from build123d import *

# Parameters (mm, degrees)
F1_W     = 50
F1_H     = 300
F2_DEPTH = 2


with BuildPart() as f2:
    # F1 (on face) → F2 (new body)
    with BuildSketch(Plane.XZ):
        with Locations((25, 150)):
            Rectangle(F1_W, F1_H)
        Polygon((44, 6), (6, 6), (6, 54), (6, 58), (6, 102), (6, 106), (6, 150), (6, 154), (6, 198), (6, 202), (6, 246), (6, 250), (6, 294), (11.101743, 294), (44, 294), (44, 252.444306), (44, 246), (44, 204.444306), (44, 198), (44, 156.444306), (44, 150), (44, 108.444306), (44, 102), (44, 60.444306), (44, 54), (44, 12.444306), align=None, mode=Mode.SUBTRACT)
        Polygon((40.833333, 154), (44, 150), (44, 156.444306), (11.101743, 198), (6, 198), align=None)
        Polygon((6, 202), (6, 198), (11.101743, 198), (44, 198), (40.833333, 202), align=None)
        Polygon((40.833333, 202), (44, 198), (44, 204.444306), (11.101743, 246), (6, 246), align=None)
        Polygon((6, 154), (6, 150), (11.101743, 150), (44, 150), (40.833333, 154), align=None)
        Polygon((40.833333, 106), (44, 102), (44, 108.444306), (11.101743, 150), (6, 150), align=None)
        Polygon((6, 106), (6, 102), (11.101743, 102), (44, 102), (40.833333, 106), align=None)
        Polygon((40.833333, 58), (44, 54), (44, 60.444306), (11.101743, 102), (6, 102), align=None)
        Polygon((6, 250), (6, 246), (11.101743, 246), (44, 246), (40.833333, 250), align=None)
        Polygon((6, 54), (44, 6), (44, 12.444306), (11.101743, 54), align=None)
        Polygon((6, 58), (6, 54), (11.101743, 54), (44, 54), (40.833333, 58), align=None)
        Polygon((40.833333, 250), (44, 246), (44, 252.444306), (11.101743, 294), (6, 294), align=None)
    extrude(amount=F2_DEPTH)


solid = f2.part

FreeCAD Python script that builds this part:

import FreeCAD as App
import Part
import Sketcher

doc = App.newDocument("Part")
body = doc.addObject("PartDesign::Body", "Body")

sketch1 = doc.addObject("Sketcher::SketchObject", "Sketch")
body.addObject(sketch1)
sketch1.AttachmentSupport = (doc.XZ_Plane, [""])
sketch1.MapMode = "FlatFace"
sketch1.addGeometry([
    Part.LineSegment(App.Vector(0, 300, 0), App.Vector(0, 0, 0)),
    Part.LineSegment(App.Vector(0, 0, 0), App.Vector(50, 0, 0)),
    Part.LineSegment(App.Vector(50, 0, 0), App.Vector(50, 300, 0)),
    Part.LineSegment(App.Vector(50, 300, 0), App.Vector(0, 300, 0)),
    Part.LineSegment(App.Vector(6, 102, 0), App.Vector(41, 58, 0)),
    Part.LineSegment(App.Vector(41, 58, 0), App.Vector(6, 58, 0)),
    Part.LineSegment(App.Vector(6, 58, 0), App.Vector(6, 102, 0)),
    Part.LineSegment(App.Vector(6, 106, 0), App.Vector(6, 150, 0)),
    Part.LineSegment(App.Vector(6, 150, 0), App.Vector(41, 106, 0)),
    Part.LineSegment(App.Vector(41, 106, 0), App.Vector(6, 106, 0)),
    Part.LineSegment(App.Vector(6, 6, 0), App.Vector(6, 54, 0)),
    Part.LineSegment(App.Vector(6, 54, 0), App.Vector(44, 6, 0)),
    Part.LineSegment(App.Vector(44, 6, 0), App.Vector(6, 6, 0)),
    Part.LineSegment(App.Vector(44, 12, 0), App.Vector(11, 54, 0)),
    Part.LineSegment(App.Vector(11, 54, 0), App.Vector(44, 54, 0)),
    Part.LineSegment(App.Vector(44, 54, 0), App.Vector(44, 12, 0)),
    Part.LineSegment(App.Vector(11, 102, 0), App.Vector(44, 102, 0)),
    Part.LineSegment(App.Vector(44, 102, 0), App.Vector(44, 60, 0)),
    Part.LineSegment(App.Vector(44, 60, 0), App.Vector(11, 102, 0)),
    Part.LineSegment(App.Vector(11, 150, 0), App.Vector(44, 150, 0)),
    Part.LineSegment(App.Vector(44, 150, 0), App.Vector(44, 108, 0)),
    Part.LineSegment(App.Vector(44, 108, 0), App.Vector(11, 150, 0)),
    Part.LineSegment(App.Vector(6, 154, 0), App.Vector(6, 198, 0)),
    Part.LineSegment(App.Vector(6, 198, 0), App.Vector(41, 154, 0)),
    Part.LineSegment(App.Vector(41, 154, 0), App.Vector(6, 154, 0)),
    Part.LineSegment(App.Vector(6, 202, 0), App.Vector(6, 246, 0)),
    Part.LineSegment(App.Vector(6, 246, 0), App.Vector(41, 202, 0)),
    Part.LineSegment(App.Vector(41, 202, 0), App.Vector(6, 202, 0)),
    Part.LineSegment(App.Vector(11, 198, 0), App.Vector(44, 198, 0)),
    Part.LineSegment(App.Vector(44, 198, 0), App.Vector(44, 156, 0)),
    Part.LineSegment(App.Vector(44, 156, 0), App.Vector(11, 198, 0)),
    Part.LineSegment(App.Vector(11, 246, 0), App.Vector(44, 246, 0)),
    Part.LineSegment(App.Vector(44, 246, 0), App.Vector(44, 204, 0)),
    Part.LineSegment(App.Vector(44, 204, 0), App.Vector(11, 246, 0)),
    Part.LineSegment(App.Vector(44, 294, 0), App.Vector(44, 252, 0)),
    Part.LineSegment(App.Vector(44, 252, 0), App.Vector(11, 294, 0)),
    Part.LineSegment(App.Vector(11, 294, 0), App.Vector(44, 294, 0)),
    Part.LineSegment(App.Vector(6, 250, 0), App.Vector(6, 294, 0)),
    Part.LineSegment(App.Vector(6, 294, 0), App.Vector(41, 250, 0)),
    Part.LineSegment(App.Vector(41, 250, 0), App.Vector(6, 250, 0)),
], False)
sketch1.addConstraint([
    Sketcher.Constraint("Coincident", 0, 2, 1, 1),
    Sketcher.Constraint("Coincident", 1, 2, 2, 1),
    Sketcher.Constraint("Coincident", 2, 2, 3, 1),
    Sketcher.Constraint("Coincident", 3, 2, 0, 1),
    Sketcher.Constraint("Coincident", 4, 2, 5, 1),
    Sketcher.Constraint("Coincident", 5, 2, 6, 1),
    Sketcher.Constraint("Coincident", 6, 2, 4, 1),
    Sketcher.Constraint("Coincident", 7, 2, 8, 1),
    Sketcher.Constraint("Coincident", 8, 2, 9, 1),
    Sketcher.Constraint("Coincident", 9, 2, 7, 1),
    Sketcher.Constraint("Coincident", 10, 2, 11, 1),
    Sketcher.Constraint("Coincident", 11, 2, 12, 1),
    Sketcher.Constraint("Coincident", 12, 2, 10, 1),
    Sketcher.Constraint("Coincident", 13, 2, 14, 1),
    Sketcher.Constraint("Coincident", 14, 2, 15, 1),
    Sketcher.Constraint("Coincident", 15, 2, 13, 1),
    Sketcher.Constraint("Coincident", 16, 2, 17, 1),
    Sketcher.Constraint("Coincident", 17, 2, 18, 1),
    Sketcher.Constraint("Coincident", 18, 2, 16, 1),
    Sketcher.Constraint("Coincident", 19, 2, 20, 1),
    Sketcher.Constraint("Coincident", 20, 2, 21, 1),
    Sketcher.Constraint("Coincident", 21, 2, 19, 1),
    Sketcher.Constraint("Coincident", 22, 2, 23, 1),
    Sketcher.Constraint("Coincident", 23, 2, 24, 1),
    Sketcher.Constraint("Coincident", 24, 2, 22, 1),
    Sketcher.Constraint("Coincident", 25, 2, 26, 1),
    Sketcher.Constraint("Coincident", 26, 2, 27, 1),
    Sketcher.Constraint("Coincident", 27, 2, 25, 1),
    Sketcher.Constraint("Coincident", 28, 2, 29, 1),
    Sketcher.Constraint("Coincident", 29, 2, 30, 1),
    Sketcher.Constraint("Coincident", 30, 2, 28, 1),
    Sketcher.Constraint("Coincident", 31, 2, 32, 1),
    Sketcher.Constraint("Coincident", 32, 2, 33, 1),
    Sketcher.Constraint("Coincident", 33, 2, 31, 1),
    Sketcher.Constraint("Coincident", 34, 2, 35, 1),
    Sketcher.Constraint("Coincident", 35, 2, 36, 1),
    Sketcher.Constraint("Coincident", 36, 2, 34, 1),
    Sketcher.Constraint("Coincident", 37, 2, 38, 1),
    Sketcher.Constraint("Coincident", 38, 2, 39, 1),
    Sketcher.Constraint("Coincident", 39, 2, 37, 1),
    Sketcher.Constraint("Vertical", 0),
    Sketcher.Constraint("Horizontal", 1),
    Sketcher.Constraint("Vertical", 2),
    Sketcher.Constraint("Horizontal", 3),
    Sketcher.Constraint("Horizontal", 5),
    Sketcher.Constraint("Vertical", 6),
    Sketcher.Constraint("Vertical", 7),
    Sketcher.Constraint("Horizontal", 9),
    Sketcher.Constraint("Vertical", 10),
    Sketcher.Constraint("Horizontal", 12),
    Sketcher.Constraint("Horizontal", 14),
    Sketcher.Constraint("Vertical", 15),
    Sketcher.Constraint("Horizontal", 16),
    Sketcher.Constraint("Vertical", 17),
    Sketcher.Constraint("Horizontal", 19),
    Sketcher.Constraint("Vertical", 20),
    Sketcher.Constraint("Vertical", 22),
    Sketcher.Constraint("Horizontal", 24),
    Sketcher.Constraint("Vertical", 25),
    Sketcher.Constraint("Horizontal", 27),
    Sketcher.Constraint("Horizontal", 28),
    Sketcher.Constraint("Vertical", 29),
    Sketcher.Constraint("Horizontal", 31),
    Sketcher.Constraint("Vertical", 32),
    Sketcher.Constraint("Vertical", 34),
    Sketcher.Constraint("Horizontal", 36),
    Sketcher.Constraint("Vertical", 37),
    Sketcher.Constraint("Horizontal", 39),
    Sketcher.Constraint("Coincident", 0, 2, -1, 1),
    Sketcher.Constraint("Parallel", 4, 8),
    Sketcher.Constraint("Parallel", 8, 11),
    Sketcher.Constraint("Parallel", 11, 13),
    Sketcher.Constraint("Parallel", 13, 18),
    Sketcher.Constraint("Parallel", 18, 21),
    Sketcher.Constraint("Parallel", 21, 23),
    Sketcher.Constraint("Parallel", 23, 26),
    Sketcher.Constraint("Parallel", 26, 30),
    Sketcher.Constraint("Parallel", 30, 33),
    Sketcher.Constraint("Parallel", 33, 35),
    Sketcher.Constraint("Parallel", 35, 38),
    Sketcher.Constraint("Horizontal", 10, 2, 13, 2),
    Sketcher.Constraint("Horizontal", 6, 2, 16, 2),
    Sketcher.Constraint("Horizontal", 7, 2, 19, 2),
    Sketcher.Constraint("Horizontal", 22, 2, 28, 2),
    Sketcher.Constraint("Horizontal", 25, 2, 31, 2),
    Sketcher.Constraint("Horizontal", 36, 2, 37, 2),
    Sketcher.Constraint("Vertical", 6, 2, 7, 2),
    Sketcher.Constraint("Vertical", 4, 2, 8, 2),
    Sketcher.Constraint("Vertical", 9, 2, 10, 2),
    Sketcher.Constraint("Vertical", 11, 2, 14, 2),
    Sketcher.Constraint("Vertical", 15, 2, 16, 2),
    Sketcher.Constraint("Vertical", 13, 2, 18, 2),
    Sketcher.Constraint("Vertical", 17, 2, 19, 2),
    Sketcher.Constraint("Vertical", 18, 2, 21, 2),
    Sketcher.Constraint("Vertical", 12, 2, 22, 2),
    Sketcher.Constraint("Vertical", 8, 2, 23, 2),
    Sketcher.Constraint("Vertical", 24, 2, 25, 2),
    Sketcher.Constraint("Vertical", 23, 2, 26, 2),
    Sketcher.Constraint("Vertical", 20, 2, 28, 2),
    Sketcher.Constraint("Vertical", 21, 2, 30, 2),
    Sketcher.Constraint("Vertical", 29, 2, 31, 2),
    Sketcher.Constraint("Vertical", 30, 2, 33, 2),
    Sketcher.Constraint("Vertical", 32, 2, 34, 2),
    Sketcher.Constraint("Vertical", 33, 2, 35, 2),
    Sketcher.Constraint("Vertical", 27, 2, 37, 2),
    Sketcher.Constraint("Vertical", 26, 2, 38, 2),
    Sketcher.Constraint("DistanceX", 1, 1, 1, 2, 50.0),
    Sketcher.Constraint("DistanceX", 12, 2, 12, 1, 38.0),
    Sketcher.Constraint("DistanceY", 0, 2, 0, 1, 300.0),
    Sketcher.Constraint("DistanceY", 6, 1, 6, 2, 44.0),
    Sketcher.Constraint("DistanceY", 10, 1, 10, 2, 48.0),
    Sketcher.Constraint("DistanceY", -1, 1, 4, 2, 58.0),
    Sketcher.Constraint("DistanceX", -1, 1, 5, 2, 6.0),
    Sketcher.Constraint("DistanceY", -1, 1, 7, 2, 150.0),
    Sketcher.Constraint("DistanceY", -1, 1, 10, 2, 54.0),
    Sketcher.Constraint("DistanceY", -1, 1, 22, 2, 198.0),
    Sketcher.Constraint("DistanceY", -1, 1, 25, 2, 246.0),
    Sketcher.Constraint("DistanceY", -1, 1, 35, 2, 294.0),
    Sketcher.Constraint("DistanceX", 14, 1, 14, 2, 32.898257),
])
pad1 = doc.addObject("PartDesign::Pad", "Pad")
body.addObject(pad1)
pad1.Profile = sketch1
pad1.Length = 2

doc.recompute()
